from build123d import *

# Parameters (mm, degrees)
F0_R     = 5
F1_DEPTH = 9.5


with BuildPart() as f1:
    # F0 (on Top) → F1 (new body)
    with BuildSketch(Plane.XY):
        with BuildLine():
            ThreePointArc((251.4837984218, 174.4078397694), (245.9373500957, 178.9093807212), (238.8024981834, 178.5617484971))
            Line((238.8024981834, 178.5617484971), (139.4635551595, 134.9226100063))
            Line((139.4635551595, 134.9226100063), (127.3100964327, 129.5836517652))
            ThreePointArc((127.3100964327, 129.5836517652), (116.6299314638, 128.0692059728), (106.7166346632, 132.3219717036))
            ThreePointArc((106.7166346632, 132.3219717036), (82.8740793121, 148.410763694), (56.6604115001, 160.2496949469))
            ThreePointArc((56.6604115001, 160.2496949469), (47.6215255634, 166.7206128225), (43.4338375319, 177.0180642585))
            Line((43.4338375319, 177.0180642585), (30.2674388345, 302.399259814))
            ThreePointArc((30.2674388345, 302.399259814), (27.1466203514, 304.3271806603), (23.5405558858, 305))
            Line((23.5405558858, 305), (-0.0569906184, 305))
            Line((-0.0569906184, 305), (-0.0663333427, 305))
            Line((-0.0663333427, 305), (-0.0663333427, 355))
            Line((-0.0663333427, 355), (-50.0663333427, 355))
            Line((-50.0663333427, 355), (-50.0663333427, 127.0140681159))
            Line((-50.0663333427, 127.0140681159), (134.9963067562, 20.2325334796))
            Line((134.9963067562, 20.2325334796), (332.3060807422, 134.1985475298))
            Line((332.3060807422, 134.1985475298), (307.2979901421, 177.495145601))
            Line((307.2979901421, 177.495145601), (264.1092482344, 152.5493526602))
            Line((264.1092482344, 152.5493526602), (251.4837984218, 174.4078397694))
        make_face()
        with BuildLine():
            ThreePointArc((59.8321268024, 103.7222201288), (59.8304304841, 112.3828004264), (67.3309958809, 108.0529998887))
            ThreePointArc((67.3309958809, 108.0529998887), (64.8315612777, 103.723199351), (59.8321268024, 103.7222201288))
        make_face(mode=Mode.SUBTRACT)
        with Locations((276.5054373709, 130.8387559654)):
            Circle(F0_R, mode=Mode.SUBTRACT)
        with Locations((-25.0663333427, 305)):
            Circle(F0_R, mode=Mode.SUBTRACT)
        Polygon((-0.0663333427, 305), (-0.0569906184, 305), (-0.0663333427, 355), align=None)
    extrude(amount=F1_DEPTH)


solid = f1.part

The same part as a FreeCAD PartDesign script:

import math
import FreeCAD as App
import Part
import Sketcher

doc = App.newDocument("Part")
params = doc.addObject("Spreadsheet::Sheet", "Params")
for row, (alias, value) in enumerate([
    ("sketch1_diameter", "10 mm"),
    ("sketch1_diameter2", "10 mm"),
    ("sketch1_radius", "10 mm"),
    ("sketch1_radius2", "20 mm"),
    ("sketch1_radius3", "170 mm"),
    ("pad1_length", "9.5 mm"),
], start=1):
    params.set(f"A{row}", alias)
    params.set(f"B{row}", "=" + value)
    params.setAlias(f"B{row}", alias)

body = doc.addObject("PartDesign::Body", "Body")

# Sketch on XY plane
sketch1 = body.newObject("Sketcher::SketchObject", "Sketch")
sketch1.AttachmentSupport = (doc.getObject("XY_Plane"), [""])
sketch1.MapMode = "FlatFace"
sketch1.addGeometry(Part.ArcOfCircle(Part.Circle(App.Vector(242.824479, 169.406222, 0), App.Vector(0, 0, 1), 10), math.radians(30.010706), math.radians(113.715662)), False)
sketch1.addGeometry(Part.LineSegment(App.Vector(238.802498, 178.561748, 0), App.Vector(127.310096, 129.583652, 0)), False)
sketch1.addGeometry(Part.ArcOfCircle(Part.Circle(App.Vector(119.266135, 147.894705, 0), App.Vector(0, 0, 1), 20), math.radians(-128.864079), math.radians(-66.284338)), False)
sketch1.addGeometry(Part.ArcOfCircle(Part.Circle(App.Vector(0.04588, -0.046265, 0), App.Vector(0, 0, 1), 170), math.radians(51.135921), math.radians(70.547416)), False)
sketch1.addGeometry(Part.ArcOfCircle(Part.Circle(App.Vector(63.324468, 179.106798, 0), App.Vector(0, 0, 1), 20), math.radians(-174.005286), math.radians(-109.46329)), False)
sketch1.addGeometry(Part.LineSegment(App.Vector(43.433838, 177.018064, 0), App.Vector(30.267439, 302.39926, 0)), False)
sketch1.addGeometry(Part.ArcOfCircle(Part.Circle(App.Vector(23.540556, 295, 0), App.Vector(0, 0, 1), 10), math.radians(47.725111), math.radians(90)), False)
sketch1.addGeometry(Part.LineSegment(App.Vector(23.540556, 305, 0), App.Vector(-0.056991, 305, 0)), False)
sketch1.addGeometry(Part.LineSegment(App.Vector(-0.056991, 305, 0), App.Vector(-0.066333, 355, 0)), False)
sketch1.addGeometry(Part.LineSegment(App.Vector(-0.066333, 355, 0), App.Vector(-50.066333, 355, 0)), False)
sketch1.addGeometry(Part.LineSegment(App.Vector(-50.066333, 355, 0), App.Vector(-50.066333, 127.014068, 0)), False)
sketch1.addGeometry(Part.LineSegment(App.Vector(-50.066333, 127.014068, 0), App.Vector(134.996307, 20.232533, 0)), False)
sketch1.addGeometry(Part.LineSegment(App.Vector(134.996307, 20.232533, 0), App.Vector(332.306081, 134.198548, 0)), False)
sketch1.addGeometry(Part.LineSegment(App.Vector(332.306081, 134.198548, 0), App.Vector(307.29799, 177.495146, 0)), False)
sketch1.addGeometry(Part.LineSegment(App.Vector(307.29799, 177.495146, 0), App.Vector(264.109248, 152.549353, 0)), False)
sketch1.addGeometry(Part.LineSegment(App.Vector(264.109248, 152.549353, 0), App.Vector(251.483798, 174.40784, 0)), False)
sketch1.addGeometry(Part.ArcOfCircle(Part.Circle(App.Vector(62.330996, 108.053, 0), App.Vector(0, 0, 1), 5), math.radians(-119.985037), math.radians(0)), False)
sketch1.addGeometry(Part.ArcOfCircle(Part.Circle(App.Vector(62.330996, 108.053, 0), App.Vector(0, 0, 1), 5), math.radians(0), math.radians(240.014963)), False)
sketch1.addGeometry(Part.Circle(App.Vector(276.505437, 130.838756, 0), App.Vector(0, 0, 1), 5), False)
sketch1.addGeometry(Part.Circle(App.Vector(-25.066333, 305, 0), App.Vector(0, 0, 1), 5), False)
sketch1.addConstraint(Sketcher.Constraint("Coincident", 0, 2, 1, 1))
sketch1.addConstraint(Sketcher.Constraint("Coincident", 1, 2, 2, 2))
sketch1.addConstraint(Sketcher.Constraint("Coincident", 2, 1, 3, 1))
sketch1.addConstraint(Sketcher.Constraint("Coincident", 3, 2, 4, 2))
sketch1.addConstraint(Sketcher.Constraint("Coincident", 4, 1, 5, 1))
sketch1.addConstraint(Sketcher.Constraint("Coincident", 5, 2, 6, 1))
sketch1.addConstraint(Sketcher.Constraint("Coincident", 6, 2, 7, 1))
sketch1.addConstraint(Sketcher.Constraint("Coincident", 7, 2, 8, 1))
sketch1.addConstraint(Sketcher.Constraint("Coincident", 8, 2, 9, 1))
sketch1.addConstraint(Sketcher.Constraint("Coincident", 9, 2, 10, 1))
sketch1.addConstraint(Sketcher.Constraint("Coincident", 10, 2, 11, 1))
sketch1.addConstraint(Sketcher.Constraint("Coincident", 11, 2, 12, 1))
sketch1.addConstraint(Sketcher.Constraint("Coincident", 12, 2, 13, 1))
sketch1.addConstraint(Sketcher.Constraint("Coincident", 13, 2, 14, 1))
sketch1.addConstraint(Sketcher.Constraint("Coincident", 14, 2, 15, 1))
sketch1.addConstraint(Sketcher.Constraint("Coincident", 15, 2, 0, 1))
sketch1.addConstraint(Sketcher.Constraint("Coincident", 16, 1, 17, 2))
sketch1.addConstraint(Sketcher.Constraint("Coincident", 17, 1, 16, 2))
sketch1.addConstraint(Sketcher.Constraint("Horizontal", 7))
sketch1.addConstraint(Sketcher.Constraint("Horizontal", 9))
sketch1.addConstraint(Sketcher.Constraint("Vertical", 10))
sketch1.addConstraint(Sketcher.Constraint("Diameter", 18, 10.0))
sketch1.addConstraint(Sketcher.Constraint("Diameter", 19, 10.0))
sketch1.addConstraint(Sketcher.Constraint("Radius", 0, 10.0))
sketch1.addConstraint(Sketcher.Constraint("Radius", 2, 20.0))
sketch1.addConstraint(Sketcher.Constraint("Radius", 3, 170.0))
sketch1.addConstraint(Sketcher.Constraint("Radius", 4, 20.0))
sketch1.addConstraint(Sketcher.Constraint("Radius", 6, 10.0))
sketch1.addConstraint(Sketcher.Constraint("Radius", 16, 5.0))
sketch1.addConstraint(Sketcher.Constraint("Radius", 17, 5.0))
sketch1.addConstraint(Sketcher.Constraint("DistanceX", 9, 2, 9, 1, 50.0))
sketch1.addConstraint(Sketcher.Constraint("Distance", 8, 50.000001))
sketch1.addConstraint(Sketcher.Constraint("Distance", 13, 50.0))
sketch1.addConstraint(Sketcher.Constraint("DistanceY", -1, 1, 6, 3, 295.0))
sketch1.addConstraint(Sketcher.Constraint("DistanceY", -1, 1, 19, 3, 305.0))
sketch1.addConstraint(Sketcher.Constraint("DistanceX", 19, 3, 8, 2, 25.0))
sketch1.addConstraint(Sketcher.Constraint("DistanceY", -1, 1, 16, 3, 108.053))
sketch1.addConstraint(Sketcher.Constraint("DistanceY", -1, 1, 17, 1, 108.053))
sketch1.addConstraint(Sketcher.Constraint("DistanceY", 10, 2, 10, 1, 227.985932))
sketch1.addConstraint(Sketcher.Constraint("DistanceY", -1, 1, 4, 3, 179.106798))
sketch1.addConstraint(Sketcher.Constraint("DistanceX", -1, 1, 0, 2, 238.802498))
sketch1.addConstraint(Sketcher.Constraint("DistanceX", -1, 1, 15, 2, 251.483798))
sketch1.addConstraint(Sketcher.Constraint("DistanceX", 3, 3, 0, 3, 242.778599))
sketch1.addConstraint(Sketcher.Constraint("DistanceX", 19, 3, 4, 3, 88.390802))
sketch1.addConstraint(Sketcher.Constraint("DistanceX", 16, 3, 1, 2, 64.979101))
sketch1.addConstraint(Sketcher.Constraint("DistanceX", 1, 2, 0, 2, 111.492402))
sketch1.addConstraint(Sketcher.Constraint("DistanceX", 2, 1, 2, 3, 12.549501))
sketch1.addConstraint(Sketcher.Constraint("DistanceX", 5, 2, 4, 1, 13.166399))
sketch1.addConstraint(Sketcher.Constraint("DistanceX", 0, 3, 12, 2, 89.481602))
sketch1.addConstraint(Sketcher.Constraint("DistanceY", 12, 2, 0, 2, 44.363201))
sketch1.addConstraint(Sketcher.Constraint("DistanceY", 12, 2, 13, 2, 43.296598))
sketch1.addConstraint(Sketcher.Constraint("Distance", 5, 126.070608))
sketch1.addConstraint(Sketcher.Constraint("Distance", 15, 25.24273))
sketch1.addConstraint(Sketcher.Constraint("DistanceX", 7, 2, 7, 1, 23.597547))
sketch1.addConstraint(Sketcher.Constraint("DistanceX", -1, 1, 0, 3, 242.824479))
sketch1.addConstraint(Sketcher.Constraint("DistanceY", -1, 1, 0, 3, 169.406222))
sketch1.addConstraint(Sketcher.Constraint("DistanceX", -1, 1, 4, 3, 63.324468))
sketch1.addConstraint(Sketcher.Constraint("DistanceY", -1, 1, 1, 2, 129.583652))
sketch1.addConstraint(Sketcher.Constraint("DistanceX", -1, 1, 3, 2, 56.660411))
sketch1.addConstraint(Sketcher.Constraint("DistanceX", -1, 1, 5, 2, 30.267439))
sketch1.addConstraint(Sketcher.Constraint("DistanceX", 7, 2, -1, 1, 0.056991))
sketch1.addConstraint(Sketcher.Constraint("DistanceX", -1, 1, 14, 2, 264.109248))
sketch1.addConstraint(Sketcher.Constraint("DistanceY", -1, 1, 16, 1, 103.72222))
sketch1.addConstraint(Sketcher.Constraint("DistanceX", 0, 3, 18, 3, 33.680959))
sketch1.addConstraint(Sketcher.Constraint("DistanceY", 18, 3, 2, 3, 17.055949))
sketch1.addConstraint(Sketcher.Constraint("DistanceX", 1, 2, 11, 2, 7.68621))
sketch1.addConstraint(Sketcher.Constraint("DistanceY", 11, 2, 1, 2, 109.351118))
sketch1.setExpression("Constraints[21]", "Params.sketch1_diameter")
sketch1.setExpression("Constraints[22]", "Params.sketch1_diameter2")
sketch1.setExpression("Constraints[23]", "Params.sketch1_radius")
sketch1.setExpression("Constraints[24]", "Params.sketch1_radius2")
sketch1.setExpression("Constraints[25]", "Params.sketch1_radius3")
pad1 = body.newObject("PartDesign::Pad", "Pad")
pad1.Profile = sketch1
pad1.setExpression("Length", "Params.pad1_length")

doc.recompute()
